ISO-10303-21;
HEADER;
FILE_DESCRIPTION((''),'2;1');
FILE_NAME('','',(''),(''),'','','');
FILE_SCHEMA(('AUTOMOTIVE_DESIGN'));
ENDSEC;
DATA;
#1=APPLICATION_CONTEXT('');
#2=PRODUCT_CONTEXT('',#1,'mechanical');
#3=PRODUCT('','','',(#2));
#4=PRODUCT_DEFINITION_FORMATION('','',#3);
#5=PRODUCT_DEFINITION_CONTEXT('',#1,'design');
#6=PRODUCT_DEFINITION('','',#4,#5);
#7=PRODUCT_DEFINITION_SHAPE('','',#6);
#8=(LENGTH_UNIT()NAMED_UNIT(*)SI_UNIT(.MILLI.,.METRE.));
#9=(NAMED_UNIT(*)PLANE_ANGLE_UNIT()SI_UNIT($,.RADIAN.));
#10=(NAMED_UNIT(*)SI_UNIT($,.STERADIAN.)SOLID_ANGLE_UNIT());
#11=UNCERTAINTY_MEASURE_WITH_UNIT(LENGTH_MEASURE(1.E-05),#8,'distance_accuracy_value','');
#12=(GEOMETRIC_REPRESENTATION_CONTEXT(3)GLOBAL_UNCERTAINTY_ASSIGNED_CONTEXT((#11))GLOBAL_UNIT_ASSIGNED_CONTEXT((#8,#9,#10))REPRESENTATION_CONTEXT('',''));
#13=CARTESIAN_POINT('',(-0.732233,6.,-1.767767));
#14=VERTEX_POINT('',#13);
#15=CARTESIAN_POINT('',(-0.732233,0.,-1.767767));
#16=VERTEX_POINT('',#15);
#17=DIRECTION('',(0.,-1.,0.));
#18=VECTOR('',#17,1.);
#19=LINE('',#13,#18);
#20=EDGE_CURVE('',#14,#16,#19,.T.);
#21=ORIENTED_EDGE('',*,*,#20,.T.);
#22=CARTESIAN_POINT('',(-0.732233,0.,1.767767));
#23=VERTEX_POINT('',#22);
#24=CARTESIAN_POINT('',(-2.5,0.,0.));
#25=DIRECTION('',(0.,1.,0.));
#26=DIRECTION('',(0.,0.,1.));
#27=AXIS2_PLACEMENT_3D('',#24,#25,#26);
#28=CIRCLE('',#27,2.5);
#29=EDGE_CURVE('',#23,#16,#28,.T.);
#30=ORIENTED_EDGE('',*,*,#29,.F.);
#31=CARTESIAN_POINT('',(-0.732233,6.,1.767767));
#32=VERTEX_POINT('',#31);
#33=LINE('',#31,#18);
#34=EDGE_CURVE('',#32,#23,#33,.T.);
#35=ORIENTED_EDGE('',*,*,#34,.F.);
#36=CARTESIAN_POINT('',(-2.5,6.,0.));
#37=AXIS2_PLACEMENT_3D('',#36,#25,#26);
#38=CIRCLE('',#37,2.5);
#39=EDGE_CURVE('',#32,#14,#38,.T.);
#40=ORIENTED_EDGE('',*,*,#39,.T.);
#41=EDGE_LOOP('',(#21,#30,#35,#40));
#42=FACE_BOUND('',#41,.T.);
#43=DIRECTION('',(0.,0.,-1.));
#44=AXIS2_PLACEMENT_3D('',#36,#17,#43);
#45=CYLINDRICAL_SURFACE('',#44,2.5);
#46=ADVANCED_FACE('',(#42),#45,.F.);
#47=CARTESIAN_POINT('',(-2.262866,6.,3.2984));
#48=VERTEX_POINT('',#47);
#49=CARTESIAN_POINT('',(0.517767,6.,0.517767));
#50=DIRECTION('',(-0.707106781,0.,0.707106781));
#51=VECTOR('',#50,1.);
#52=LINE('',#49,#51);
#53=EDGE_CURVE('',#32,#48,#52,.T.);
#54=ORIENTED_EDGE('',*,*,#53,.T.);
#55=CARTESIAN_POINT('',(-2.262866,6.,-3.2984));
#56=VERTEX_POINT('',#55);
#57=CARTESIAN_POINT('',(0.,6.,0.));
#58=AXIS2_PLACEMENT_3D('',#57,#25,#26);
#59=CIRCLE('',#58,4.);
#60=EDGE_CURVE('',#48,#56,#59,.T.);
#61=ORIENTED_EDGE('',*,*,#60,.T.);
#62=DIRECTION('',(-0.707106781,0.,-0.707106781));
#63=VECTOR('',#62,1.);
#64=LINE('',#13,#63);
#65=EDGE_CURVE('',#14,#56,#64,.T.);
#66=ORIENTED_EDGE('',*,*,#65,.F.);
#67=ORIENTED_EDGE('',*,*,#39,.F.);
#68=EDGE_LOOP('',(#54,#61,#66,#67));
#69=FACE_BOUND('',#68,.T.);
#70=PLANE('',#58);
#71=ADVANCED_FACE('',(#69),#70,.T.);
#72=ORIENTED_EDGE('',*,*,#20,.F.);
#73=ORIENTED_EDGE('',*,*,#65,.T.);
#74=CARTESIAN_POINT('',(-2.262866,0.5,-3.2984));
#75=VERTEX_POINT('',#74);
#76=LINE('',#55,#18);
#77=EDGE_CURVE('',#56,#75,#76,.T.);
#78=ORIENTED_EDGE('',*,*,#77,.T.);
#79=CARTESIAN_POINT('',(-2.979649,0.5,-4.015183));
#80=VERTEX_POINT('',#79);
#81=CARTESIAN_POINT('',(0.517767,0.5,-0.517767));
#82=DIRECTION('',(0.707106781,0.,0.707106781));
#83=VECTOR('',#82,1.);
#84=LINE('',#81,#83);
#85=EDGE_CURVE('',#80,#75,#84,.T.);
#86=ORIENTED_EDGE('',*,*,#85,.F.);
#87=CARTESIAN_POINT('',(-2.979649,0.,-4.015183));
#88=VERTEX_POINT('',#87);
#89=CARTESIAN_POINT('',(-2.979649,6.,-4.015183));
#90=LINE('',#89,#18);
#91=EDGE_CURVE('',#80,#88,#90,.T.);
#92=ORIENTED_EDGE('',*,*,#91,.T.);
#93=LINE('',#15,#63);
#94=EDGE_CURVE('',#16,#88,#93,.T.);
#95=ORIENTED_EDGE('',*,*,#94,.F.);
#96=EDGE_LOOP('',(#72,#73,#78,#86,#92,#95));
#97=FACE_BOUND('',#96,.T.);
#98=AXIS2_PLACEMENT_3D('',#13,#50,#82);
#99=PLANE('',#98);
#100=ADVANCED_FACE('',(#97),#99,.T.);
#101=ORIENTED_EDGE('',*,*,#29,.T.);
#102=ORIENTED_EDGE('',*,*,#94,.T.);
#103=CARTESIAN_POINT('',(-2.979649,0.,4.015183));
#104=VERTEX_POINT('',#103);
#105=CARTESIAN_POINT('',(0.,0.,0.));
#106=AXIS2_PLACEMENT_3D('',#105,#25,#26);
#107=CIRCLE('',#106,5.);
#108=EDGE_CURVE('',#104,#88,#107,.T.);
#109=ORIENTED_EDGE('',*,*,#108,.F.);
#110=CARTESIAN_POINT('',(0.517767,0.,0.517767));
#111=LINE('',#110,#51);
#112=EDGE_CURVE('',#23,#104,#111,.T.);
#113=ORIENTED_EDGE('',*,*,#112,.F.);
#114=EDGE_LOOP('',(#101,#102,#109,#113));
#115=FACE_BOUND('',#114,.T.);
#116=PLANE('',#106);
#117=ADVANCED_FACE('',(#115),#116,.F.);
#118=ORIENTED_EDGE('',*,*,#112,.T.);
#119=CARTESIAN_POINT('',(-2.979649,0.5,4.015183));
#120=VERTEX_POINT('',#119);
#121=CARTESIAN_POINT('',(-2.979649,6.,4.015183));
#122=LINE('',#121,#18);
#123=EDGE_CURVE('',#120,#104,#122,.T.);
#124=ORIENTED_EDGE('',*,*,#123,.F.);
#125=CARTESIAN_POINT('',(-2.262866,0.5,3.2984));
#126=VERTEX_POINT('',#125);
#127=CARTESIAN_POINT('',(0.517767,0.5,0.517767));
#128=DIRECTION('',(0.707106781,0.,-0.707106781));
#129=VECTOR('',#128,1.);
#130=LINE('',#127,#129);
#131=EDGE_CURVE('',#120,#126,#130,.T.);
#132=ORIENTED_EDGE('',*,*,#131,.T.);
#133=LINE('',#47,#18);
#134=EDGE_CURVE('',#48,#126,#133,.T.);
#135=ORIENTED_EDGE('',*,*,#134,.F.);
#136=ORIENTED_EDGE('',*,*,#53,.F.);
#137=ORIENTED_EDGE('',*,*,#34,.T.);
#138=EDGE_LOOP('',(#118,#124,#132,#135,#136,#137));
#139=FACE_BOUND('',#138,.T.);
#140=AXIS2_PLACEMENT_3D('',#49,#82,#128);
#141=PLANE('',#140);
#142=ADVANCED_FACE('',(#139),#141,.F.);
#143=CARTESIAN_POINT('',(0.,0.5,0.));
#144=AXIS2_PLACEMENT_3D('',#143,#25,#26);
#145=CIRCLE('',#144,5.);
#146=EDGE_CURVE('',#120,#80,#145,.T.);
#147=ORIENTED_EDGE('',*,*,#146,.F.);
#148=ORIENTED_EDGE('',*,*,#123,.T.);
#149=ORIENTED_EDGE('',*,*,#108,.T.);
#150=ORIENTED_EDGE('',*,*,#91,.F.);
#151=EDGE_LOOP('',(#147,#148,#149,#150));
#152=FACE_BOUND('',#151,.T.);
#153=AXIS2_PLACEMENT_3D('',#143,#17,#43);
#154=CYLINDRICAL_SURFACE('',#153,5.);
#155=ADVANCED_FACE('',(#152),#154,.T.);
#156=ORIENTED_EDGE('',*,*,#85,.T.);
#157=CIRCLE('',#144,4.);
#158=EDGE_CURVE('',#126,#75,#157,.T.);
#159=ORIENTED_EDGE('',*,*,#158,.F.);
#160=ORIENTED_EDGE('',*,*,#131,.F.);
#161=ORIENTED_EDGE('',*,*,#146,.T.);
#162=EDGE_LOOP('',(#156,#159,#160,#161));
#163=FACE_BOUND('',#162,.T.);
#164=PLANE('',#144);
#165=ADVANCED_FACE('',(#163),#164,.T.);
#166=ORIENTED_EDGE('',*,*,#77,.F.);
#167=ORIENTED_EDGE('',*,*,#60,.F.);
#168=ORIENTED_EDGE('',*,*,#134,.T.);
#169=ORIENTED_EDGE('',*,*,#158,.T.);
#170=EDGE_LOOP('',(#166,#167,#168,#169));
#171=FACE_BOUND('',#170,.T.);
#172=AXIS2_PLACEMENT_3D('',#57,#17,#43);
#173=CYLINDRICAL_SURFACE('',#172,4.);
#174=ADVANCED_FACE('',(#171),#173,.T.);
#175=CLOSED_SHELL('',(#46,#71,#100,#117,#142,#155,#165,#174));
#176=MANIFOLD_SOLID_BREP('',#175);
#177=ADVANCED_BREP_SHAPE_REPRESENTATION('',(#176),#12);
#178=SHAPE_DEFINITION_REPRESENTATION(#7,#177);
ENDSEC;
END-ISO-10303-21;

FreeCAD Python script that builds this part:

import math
import FreeCAD as App
import Part
import Sketcher
from FreeCAD import Vector
Q = App.Units.Quantity

doc = App.newDocument("Part")
body = doc.addObject("PartDesign::Body", "Body")

sketch1 = body.newObject("Sketcher::SketchObject", "Sketch")
sketch1.AttachmentSupport = (doc.getObject("XZ_Plane"), [""])
sketch1.MapMode = "FlatFace"
sketch1.addGeometry([
    Part.Circle(Vector(0, 0, 0), Vector(0, 0, 1), 5),
    Part.Circle(Vector(0, 0, 0), Vector(0, 0, 1), 4),
], False)
sketch1.addConstraint([
    Sketcher.Constraint("Coincident", 0, 3, -1, 1),
    Sketcher.Constraint("Coincident", 1, 3, -1, 1),
    Sketcher.Constraint("Diameter", 0, Q("10 mm")),
    Sketcher.Constraint("Diameter", 1, Q("8 mm")),
])
pad1 = body.newObject("PartDesign::Pad", "Pad")
pad1.Profile = sketch1
pad1.Length = 0.5
pad1.Reversed = True

sketch2 = body.newObject("Sketcher::SketchObject", "Sketch001")
sketch2.AttachmentSupport = (doc.getObject("XZ_Plane"), [""])
sketch2.MapMode = "FlatFace"
sketch2.addGeometry(Part.Circle(Vector(0, 0, 0), Vector(0, 0, 1), 4), False)
sketch2.addConstraint([
    Sketcher.Constraint("Coincident", 0, 3, -1, 1),
    Sketcher.Constraint("Diameter", 0, Q("8 mm")),
])
pad2 = body.newObject("PartDesign::Pad", "Pad001")
pad2.Profile = sketch2
pad2.Length = 6
pad2.Reversed = True

sketch3 = body.newObject("Sketcher::SketchObject", "Sketch002")
sketch3.AttachmentSupport = (doc.getObject("XZ_Plane"), [""])
sketch3.MapMode = "FlatFace"
sketch3.addGeometry([
    Part.LineSegment(Vector(-0.7, -1.8, 0), Vector(-3, -4, 0)),
    Part.ArcOfCircle(Part.Circle(Vector(0, 0, 0), Vector(0, 0, 1), 5), math.radians(127), math.radians(233)),
    Part.LineSegment(Vector(-3, 4, 0), Vector(-0.7, 1.8, 0)),
    Part.ArcOfCircle(Part.Circle(Vector(-2.5, 0, 0), Vector(0, 0, 1), 2.5), math.radians(-45), math.radians(45)),
], False)
sketch3.addConstraint([
    Sketcher.Constraint("Coincident", 0, 2, 1, 2),
    Sketcher.Constraint("Coincident", 1, 1, 2, 1),
    Sketcher.Constraint("Tangent", 2, 2, 3, 2),
    Sketcher.Constraint("Tangent", 3, 1, 0, 1),
    Sketcher.Constraint("Coincident", 1, 3, -1, 1),
    Sketcher.Constraint("Symmetric", 2, 2, 3, 1, -1),
    Sketcher.Constraint("Perpendicular", 0, 2),
    Sketcher.Constraint("Radius", 1, Q("5 mm")),
    Sketcher.Constraint("Radius", 3, Q("2.5 mm")),
    Sketcher.Constraint("DistanceX", 3, 3, -1, 1, Q("2.5 mm")),
])
pocket1 = body.newObject("PartDesign::Pocket", "Pocket")
pocket1.Profile = sketch3
pocket1.Type = "ThroughAll"

doc.recompute()
